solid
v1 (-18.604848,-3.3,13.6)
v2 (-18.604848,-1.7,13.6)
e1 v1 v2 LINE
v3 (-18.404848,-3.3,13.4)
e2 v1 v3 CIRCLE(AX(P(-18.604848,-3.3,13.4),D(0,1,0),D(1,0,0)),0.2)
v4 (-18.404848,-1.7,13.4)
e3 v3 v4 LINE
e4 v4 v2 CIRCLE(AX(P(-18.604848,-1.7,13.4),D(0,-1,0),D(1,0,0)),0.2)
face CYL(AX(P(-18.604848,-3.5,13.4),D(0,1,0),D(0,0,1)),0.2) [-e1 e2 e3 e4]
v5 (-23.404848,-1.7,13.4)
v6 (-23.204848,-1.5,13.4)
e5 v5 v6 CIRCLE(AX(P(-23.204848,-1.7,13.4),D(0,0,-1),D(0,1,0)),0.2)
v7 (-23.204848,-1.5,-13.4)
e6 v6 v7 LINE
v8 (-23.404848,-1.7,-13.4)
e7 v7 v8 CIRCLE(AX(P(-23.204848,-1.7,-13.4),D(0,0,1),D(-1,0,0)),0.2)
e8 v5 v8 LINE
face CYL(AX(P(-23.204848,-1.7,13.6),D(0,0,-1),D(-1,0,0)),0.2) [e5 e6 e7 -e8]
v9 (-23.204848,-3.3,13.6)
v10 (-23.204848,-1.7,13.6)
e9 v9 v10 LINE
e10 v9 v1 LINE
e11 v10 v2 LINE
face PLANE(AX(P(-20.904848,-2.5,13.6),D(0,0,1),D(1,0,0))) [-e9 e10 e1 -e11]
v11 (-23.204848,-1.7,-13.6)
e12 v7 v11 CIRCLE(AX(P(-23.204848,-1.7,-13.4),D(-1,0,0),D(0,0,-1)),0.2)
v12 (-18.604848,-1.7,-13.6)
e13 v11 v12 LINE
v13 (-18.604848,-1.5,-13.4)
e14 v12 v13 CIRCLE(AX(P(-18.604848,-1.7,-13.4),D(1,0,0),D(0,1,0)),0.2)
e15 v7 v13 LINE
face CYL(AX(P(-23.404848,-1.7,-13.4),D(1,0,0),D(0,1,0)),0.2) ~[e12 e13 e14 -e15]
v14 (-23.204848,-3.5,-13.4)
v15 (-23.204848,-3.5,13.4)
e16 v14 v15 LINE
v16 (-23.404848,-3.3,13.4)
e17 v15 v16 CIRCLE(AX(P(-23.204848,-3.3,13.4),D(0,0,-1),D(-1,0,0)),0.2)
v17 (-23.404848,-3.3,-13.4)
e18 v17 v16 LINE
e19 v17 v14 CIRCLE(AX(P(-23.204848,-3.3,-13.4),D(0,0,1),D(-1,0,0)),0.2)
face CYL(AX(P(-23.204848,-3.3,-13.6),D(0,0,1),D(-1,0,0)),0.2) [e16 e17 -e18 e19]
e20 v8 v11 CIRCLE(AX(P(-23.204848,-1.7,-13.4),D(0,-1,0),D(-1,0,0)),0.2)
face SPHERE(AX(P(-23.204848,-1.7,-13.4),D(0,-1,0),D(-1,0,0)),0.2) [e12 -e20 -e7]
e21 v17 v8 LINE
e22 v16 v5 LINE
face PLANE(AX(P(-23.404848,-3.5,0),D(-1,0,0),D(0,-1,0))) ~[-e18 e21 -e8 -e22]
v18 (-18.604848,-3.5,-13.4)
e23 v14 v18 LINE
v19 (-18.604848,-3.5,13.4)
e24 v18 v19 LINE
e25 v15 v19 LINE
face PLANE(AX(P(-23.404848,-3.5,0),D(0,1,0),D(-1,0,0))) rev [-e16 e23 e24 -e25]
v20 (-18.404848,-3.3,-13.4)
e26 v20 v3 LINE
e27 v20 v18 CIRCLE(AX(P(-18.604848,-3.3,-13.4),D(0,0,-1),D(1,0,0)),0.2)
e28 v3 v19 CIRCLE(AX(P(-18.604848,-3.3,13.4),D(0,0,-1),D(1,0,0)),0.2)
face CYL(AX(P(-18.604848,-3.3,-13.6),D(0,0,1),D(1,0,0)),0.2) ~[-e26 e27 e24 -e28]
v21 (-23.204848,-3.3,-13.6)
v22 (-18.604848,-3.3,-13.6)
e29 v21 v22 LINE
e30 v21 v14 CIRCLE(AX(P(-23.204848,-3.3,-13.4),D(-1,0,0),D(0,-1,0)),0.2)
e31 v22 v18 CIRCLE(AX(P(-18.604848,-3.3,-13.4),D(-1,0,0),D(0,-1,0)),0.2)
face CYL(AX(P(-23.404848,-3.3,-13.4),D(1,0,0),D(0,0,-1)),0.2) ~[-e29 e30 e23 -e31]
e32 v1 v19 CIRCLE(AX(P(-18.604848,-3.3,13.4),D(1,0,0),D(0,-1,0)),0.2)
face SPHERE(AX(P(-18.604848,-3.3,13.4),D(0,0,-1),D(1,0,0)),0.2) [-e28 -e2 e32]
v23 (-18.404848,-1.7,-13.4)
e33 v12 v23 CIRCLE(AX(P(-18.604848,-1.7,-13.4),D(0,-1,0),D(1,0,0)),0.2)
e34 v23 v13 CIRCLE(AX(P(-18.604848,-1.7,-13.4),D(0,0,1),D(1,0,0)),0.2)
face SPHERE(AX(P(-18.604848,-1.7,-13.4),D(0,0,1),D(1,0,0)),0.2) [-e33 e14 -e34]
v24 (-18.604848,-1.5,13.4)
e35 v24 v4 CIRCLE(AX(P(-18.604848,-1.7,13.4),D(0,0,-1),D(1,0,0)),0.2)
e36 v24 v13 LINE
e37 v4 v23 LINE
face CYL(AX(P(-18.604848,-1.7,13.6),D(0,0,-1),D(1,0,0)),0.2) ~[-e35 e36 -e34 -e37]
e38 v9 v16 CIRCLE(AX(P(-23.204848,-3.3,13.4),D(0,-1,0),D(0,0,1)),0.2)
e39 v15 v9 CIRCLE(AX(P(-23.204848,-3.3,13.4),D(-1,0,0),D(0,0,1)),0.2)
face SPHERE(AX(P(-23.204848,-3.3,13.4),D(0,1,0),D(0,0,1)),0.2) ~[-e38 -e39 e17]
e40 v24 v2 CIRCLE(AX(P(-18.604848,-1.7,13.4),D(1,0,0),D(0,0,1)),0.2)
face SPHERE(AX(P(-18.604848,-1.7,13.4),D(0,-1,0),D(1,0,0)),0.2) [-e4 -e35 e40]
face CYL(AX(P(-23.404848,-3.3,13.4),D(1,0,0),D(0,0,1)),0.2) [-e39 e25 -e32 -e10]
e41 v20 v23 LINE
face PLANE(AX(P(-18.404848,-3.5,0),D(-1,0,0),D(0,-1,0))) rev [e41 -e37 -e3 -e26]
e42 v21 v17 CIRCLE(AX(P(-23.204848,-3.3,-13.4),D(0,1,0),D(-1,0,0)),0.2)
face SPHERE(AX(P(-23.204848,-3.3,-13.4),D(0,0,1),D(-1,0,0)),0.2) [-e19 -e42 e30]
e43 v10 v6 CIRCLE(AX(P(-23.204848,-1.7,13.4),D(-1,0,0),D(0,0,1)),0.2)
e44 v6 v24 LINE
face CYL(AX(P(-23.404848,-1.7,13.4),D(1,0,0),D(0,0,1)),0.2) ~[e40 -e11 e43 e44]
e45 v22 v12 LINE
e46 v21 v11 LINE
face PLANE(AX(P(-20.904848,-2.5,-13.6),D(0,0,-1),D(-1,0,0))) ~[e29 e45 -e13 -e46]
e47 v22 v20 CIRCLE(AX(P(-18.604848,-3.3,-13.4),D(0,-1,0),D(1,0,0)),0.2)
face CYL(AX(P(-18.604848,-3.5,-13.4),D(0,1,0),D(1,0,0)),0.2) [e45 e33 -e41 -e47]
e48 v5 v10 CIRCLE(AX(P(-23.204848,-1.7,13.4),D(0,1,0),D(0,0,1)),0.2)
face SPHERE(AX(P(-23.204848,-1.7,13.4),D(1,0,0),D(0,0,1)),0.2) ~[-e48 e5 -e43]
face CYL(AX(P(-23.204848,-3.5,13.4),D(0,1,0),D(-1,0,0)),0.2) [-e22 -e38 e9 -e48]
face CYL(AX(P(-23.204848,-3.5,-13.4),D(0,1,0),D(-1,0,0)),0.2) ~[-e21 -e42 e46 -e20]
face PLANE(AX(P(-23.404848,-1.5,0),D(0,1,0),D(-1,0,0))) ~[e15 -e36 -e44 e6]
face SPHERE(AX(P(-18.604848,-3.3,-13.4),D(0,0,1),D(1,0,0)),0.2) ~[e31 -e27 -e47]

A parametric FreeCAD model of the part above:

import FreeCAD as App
import Part
import Sketcher

V = App.Vector

doc = App.newDocument("Part")
body = doc.addObject("PartDesign::Body", "Body")

sketch1 = doc.addObject("Sketcher::SketchObject", "Sketch")
body.addObject(sketch1)
sketch1.AttachmentSupport = (doc.XY_Plane, [""])
sketch1.MapMode = "FlatFace"
sketch1.addGeometry([
    Part.LineSegment(V(-23.404848, -1.5, 0), V(-23.404848, -3.5, 0)),
    Part.LineSegment(V(-23.404848, -3.5, 0), V(-18.404848, -3.5, 0)),
    Part.LineSegment(V(-18.404848, -3.5, 0), V(-18.404848, -1.5, 0)),
    Part.LineSegment(V(-18.404848, -1.5, 0), V(-23.404848, -1.5, 0)),
], False)
sketch1.addConstraint([
    Sketcher.Constraint("Coincident", 0, 2, 1, 1),
    Sketcher.Constraint("Coincident", 1, 2, 2, 1),
    Sketcher.Constraint("Coincident", 2, 2, 3, 1),
    Sketcher.Constraint("Coincident", 3, 2, 0, 1),
    Sketcher.Constraint("Vertical", 0),
    Sketcher.Constraint("Horizontal", 1),
    Sketcher.Constraint("Vertical", 2),
    Sketcher.Constraint("Horizontal", 3),
    Sketcher.Constraint("DistanceX", 1, 1, 1, 2, 5.0),
    Sketcher.Constraint("DistanceY", 0, 2, 0, 1, 2.0),
    Sketcher.Constraint("DistanceY", 0, 2, -1, 1, 3.5),
    Sketcher.Constraint("DistanceX", 0, 2, -1, 1, 23.404848),
])
pad1 = doc.addObject("PartDesign::Pad", "Pad")
body.addObject(pad1)
pad1.Profile = sketch1
pad1.Length = 13.6
body2 = doc.addObject("PartDesign::Body", "Body001")
doc.recompute()

body2.BaseFeature = body
doc.recompute()

mirroring = doc.addObject("Part::Mirroring", "Mirroring")
mirroring.Source = body
mirroring.Base = V(0, 0, 0)
mirroring.Normal = V(0, 0, 1)
body3 = doc.addObject("PartDesign::Body", "Body002")
body3.BaseFeature = mirroring
boolean = doc.addObject("PartDesign::Boolean", "Boolean")
body2.addObject(boolean)
boolean.Type = "Fuse"
boolean.addObjects([body3])
doc.recompute()

fillet = doc.addObject("PartDesign::Fillet", "Fillet")
body2.addObject(fillet)
fillet.Base = (boolean, ["Edge1"])
fillet.UseAllEdges = True
fillet.Radius = 0.2
mirroring.Visibility = False

doc.recompute()
